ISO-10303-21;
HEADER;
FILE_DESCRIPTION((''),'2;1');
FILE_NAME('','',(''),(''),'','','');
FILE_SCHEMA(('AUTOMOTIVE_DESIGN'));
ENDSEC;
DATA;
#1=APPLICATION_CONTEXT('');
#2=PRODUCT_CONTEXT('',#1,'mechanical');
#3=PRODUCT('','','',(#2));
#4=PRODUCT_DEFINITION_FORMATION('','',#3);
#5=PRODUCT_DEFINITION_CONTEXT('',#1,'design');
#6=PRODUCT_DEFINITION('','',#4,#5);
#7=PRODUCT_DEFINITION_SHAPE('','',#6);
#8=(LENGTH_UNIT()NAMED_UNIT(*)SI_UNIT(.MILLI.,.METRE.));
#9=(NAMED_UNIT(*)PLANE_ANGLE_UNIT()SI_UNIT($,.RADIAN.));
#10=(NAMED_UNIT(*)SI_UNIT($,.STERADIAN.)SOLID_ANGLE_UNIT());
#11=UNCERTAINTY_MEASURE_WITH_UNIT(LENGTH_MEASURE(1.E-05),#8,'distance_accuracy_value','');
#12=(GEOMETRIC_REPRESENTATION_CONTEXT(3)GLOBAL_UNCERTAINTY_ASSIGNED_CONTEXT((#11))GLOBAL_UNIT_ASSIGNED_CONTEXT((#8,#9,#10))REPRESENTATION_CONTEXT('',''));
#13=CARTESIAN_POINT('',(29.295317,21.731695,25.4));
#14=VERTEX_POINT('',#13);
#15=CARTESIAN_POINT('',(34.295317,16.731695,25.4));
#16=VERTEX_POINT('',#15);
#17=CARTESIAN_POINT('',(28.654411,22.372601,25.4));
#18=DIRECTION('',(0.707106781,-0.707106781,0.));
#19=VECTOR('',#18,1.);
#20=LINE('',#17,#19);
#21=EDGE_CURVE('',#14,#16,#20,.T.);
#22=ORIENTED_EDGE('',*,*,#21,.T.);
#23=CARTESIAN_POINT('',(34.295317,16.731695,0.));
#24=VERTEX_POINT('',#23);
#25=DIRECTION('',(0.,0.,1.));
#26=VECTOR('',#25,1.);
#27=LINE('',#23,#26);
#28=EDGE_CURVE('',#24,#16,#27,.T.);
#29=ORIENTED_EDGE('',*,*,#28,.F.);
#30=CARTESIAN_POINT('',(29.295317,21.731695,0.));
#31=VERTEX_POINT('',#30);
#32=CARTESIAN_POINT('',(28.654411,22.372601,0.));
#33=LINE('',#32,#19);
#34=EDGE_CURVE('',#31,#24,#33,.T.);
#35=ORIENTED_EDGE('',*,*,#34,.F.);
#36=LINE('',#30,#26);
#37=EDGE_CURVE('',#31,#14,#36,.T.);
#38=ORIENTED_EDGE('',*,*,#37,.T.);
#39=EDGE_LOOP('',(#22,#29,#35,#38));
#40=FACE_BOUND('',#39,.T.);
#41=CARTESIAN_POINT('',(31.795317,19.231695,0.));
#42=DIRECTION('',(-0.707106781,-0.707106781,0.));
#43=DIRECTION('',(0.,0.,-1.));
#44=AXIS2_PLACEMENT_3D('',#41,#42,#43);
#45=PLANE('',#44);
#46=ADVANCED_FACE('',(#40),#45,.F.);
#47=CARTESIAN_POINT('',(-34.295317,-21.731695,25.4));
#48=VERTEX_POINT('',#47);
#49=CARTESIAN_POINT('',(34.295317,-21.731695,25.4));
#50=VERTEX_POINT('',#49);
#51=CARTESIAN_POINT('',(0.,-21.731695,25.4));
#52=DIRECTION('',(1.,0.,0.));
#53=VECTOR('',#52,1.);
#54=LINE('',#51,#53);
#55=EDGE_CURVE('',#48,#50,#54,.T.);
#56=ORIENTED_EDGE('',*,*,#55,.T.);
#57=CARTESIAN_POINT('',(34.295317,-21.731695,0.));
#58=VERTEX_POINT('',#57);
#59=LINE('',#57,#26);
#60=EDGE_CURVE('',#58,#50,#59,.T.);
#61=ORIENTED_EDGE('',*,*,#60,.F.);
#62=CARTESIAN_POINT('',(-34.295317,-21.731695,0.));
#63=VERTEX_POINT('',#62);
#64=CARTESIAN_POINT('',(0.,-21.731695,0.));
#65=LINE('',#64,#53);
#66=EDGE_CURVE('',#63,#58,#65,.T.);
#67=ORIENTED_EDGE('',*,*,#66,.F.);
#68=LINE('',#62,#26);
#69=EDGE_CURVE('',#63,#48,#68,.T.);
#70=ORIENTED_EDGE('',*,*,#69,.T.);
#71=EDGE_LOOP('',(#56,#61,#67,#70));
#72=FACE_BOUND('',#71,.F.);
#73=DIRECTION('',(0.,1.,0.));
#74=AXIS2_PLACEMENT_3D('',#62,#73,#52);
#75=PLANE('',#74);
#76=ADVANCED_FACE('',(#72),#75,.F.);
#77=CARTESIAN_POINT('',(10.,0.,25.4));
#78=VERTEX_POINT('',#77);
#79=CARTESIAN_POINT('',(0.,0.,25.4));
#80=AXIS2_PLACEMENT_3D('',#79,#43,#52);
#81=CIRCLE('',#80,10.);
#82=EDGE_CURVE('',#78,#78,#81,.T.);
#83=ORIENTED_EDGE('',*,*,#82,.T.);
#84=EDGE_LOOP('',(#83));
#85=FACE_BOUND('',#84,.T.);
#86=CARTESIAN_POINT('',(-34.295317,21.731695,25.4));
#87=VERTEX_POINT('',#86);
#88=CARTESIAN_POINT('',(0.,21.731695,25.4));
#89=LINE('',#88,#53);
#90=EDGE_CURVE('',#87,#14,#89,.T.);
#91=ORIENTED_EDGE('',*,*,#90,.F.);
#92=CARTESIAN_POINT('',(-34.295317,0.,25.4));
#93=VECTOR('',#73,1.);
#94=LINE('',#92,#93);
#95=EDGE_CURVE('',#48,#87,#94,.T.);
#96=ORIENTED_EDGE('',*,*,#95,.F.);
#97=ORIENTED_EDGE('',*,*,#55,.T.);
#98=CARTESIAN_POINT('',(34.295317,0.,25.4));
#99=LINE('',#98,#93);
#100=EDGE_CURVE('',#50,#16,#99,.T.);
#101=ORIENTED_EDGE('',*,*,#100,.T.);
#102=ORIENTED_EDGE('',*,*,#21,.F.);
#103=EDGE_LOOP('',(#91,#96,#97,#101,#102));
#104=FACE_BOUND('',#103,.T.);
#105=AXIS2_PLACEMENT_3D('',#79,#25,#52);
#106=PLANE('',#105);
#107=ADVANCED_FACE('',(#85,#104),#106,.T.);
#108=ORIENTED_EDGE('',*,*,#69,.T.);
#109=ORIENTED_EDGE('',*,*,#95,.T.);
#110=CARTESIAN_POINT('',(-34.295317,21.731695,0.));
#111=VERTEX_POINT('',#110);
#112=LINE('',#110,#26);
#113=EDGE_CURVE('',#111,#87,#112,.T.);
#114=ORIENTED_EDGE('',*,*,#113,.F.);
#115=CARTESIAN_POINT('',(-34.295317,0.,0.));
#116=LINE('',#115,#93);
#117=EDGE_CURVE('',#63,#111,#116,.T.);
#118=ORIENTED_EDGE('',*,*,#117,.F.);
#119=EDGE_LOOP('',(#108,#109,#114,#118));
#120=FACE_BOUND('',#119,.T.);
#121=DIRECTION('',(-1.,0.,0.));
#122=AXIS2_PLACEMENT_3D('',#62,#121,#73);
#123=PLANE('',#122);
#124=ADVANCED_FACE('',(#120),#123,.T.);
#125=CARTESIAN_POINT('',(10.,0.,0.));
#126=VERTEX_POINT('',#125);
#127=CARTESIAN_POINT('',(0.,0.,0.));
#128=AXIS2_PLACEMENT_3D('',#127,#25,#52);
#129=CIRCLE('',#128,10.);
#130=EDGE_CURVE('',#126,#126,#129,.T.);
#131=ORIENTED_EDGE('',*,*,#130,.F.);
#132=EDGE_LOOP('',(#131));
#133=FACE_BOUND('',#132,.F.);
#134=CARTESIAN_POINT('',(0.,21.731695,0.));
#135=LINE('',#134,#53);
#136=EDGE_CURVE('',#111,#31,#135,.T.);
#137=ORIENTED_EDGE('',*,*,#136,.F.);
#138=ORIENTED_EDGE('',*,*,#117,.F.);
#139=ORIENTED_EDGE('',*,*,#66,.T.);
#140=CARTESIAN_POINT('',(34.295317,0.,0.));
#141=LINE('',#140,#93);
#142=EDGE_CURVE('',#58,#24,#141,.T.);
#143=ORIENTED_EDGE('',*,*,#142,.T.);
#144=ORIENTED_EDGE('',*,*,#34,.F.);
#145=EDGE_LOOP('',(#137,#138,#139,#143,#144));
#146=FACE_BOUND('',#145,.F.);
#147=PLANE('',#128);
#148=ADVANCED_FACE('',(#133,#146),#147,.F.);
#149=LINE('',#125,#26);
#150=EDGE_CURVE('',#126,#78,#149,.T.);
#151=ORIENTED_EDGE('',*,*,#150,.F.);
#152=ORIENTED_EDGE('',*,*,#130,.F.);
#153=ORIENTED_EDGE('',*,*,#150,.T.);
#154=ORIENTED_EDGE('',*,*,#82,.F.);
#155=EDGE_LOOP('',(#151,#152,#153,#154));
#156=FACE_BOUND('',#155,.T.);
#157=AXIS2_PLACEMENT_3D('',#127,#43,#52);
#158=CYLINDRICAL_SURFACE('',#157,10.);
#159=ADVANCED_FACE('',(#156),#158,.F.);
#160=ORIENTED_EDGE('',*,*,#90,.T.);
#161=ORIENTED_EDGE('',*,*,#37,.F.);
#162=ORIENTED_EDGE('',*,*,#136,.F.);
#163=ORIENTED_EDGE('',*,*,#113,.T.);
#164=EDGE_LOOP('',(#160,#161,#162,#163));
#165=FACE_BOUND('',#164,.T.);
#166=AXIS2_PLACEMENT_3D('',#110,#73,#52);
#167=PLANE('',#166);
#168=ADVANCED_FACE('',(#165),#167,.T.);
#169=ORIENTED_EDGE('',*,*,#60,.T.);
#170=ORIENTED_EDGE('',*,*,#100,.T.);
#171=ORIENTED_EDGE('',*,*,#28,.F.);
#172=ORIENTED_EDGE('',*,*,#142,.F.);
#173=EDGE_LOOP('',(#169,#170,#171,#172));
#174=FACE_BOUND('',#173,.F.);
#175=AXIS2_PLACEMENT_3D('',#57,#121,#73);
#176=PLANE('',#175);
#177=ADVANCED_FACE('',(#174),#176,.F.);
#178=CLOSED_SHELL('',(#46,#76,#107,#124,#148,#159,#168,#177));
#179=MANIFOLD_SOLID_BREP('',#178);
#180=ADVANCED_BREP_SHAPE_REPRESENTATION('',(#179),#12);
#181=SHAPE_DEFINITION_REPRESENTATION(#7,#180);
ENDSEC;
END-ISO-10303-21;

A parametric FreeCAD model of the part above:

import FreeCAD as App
import Part
import Sketcher
from FreeCAD import Vector
Q = App.Units.Quantity


def edges_at(feature, points):
    """Names of the edges that pass closest to the given points."""
    edges = feature.Shape.Edges
    near = lambda p: min(range(len(edges)), key=lambda i: edges[i].distToShape(Part.Vertex(*p))[0])
    return sorted({f"Edge{near(p) + 1}" for p in points})


def add_polygon(sketch, points):
    """Adds a closed chain of lines whose ends are joined by coincident constraints."""
    first, n = sketch.GeometryCount, len(points)
    for a, b in zip(points, points[1:] + points[:1]):
        sketch.addGeometry(Part.LineSegment(App.Vector(*a, 0), App.Vector(*b, 0)), False)
    for i in range(n):
        sketch.addConstraint(Sketcher.Constraint("Coincident", first + i, 2, first + (i + 1) % n, 1))

doc = App.newDocument("Part")
body = doc.addObject("PartDesign::Body", "Body")

# Sketch on XY plane
sketch1 = doc.addObject("Sketcher::SketchObject", "Sketch")
body.addObject(sketch1)
sketch1.AttachmentSupport = (doc.XY_Plane, [""])
sketch1.MapMode = "FlatFace"
add_polygon(sketch1, [(-34, 22), (-34, -22), (34, -22), (34, 22)])  # lines 0-3
sketch1.addConstraint([
    Sketcher.Constraint("Vertical", 0),
    Sketcher.Constraint("Horizontal", 1),
    Sketcher.Constraint("Vertical", 2),
    Sketcher.Constraint("Horizontal", 3),
    Sketcher.Constraint("Symmetric", 0, 2, 2, 2, -1, 1),
    Sketcher.Constraint("DistanceY", 0, 2, 0, 1, Q("43.46339 mm")),
    Sketcher.Constraint("DistanceX", 1, 1, 1, 2, Q("68.590634 mm")),
])
pad1 = doc.addObject("PartDesign::Pad", "Pad")
body.addObject(pad1)
pad1.Profile = sketch1
pad1.Length = 25.4

# Sketch on XY plane
sketch2 = doc.addObject("Sketcher::SketchObject", "Sketch001")
body.addObject(sketch2)
sketch2.AttachmentSupport = (doc.XY_Plane, [""])
sketch2.MapMode = "FlatFace"
sketch2.addGeometry(Part.Circle(Vector(0, 0, 0), Vector(0, 0, 1), 2.5), False)
sketch2.addConstraint([
    Sketcher.Constraint("Coincident", 0, 3, -1, 1),
    Sketcher.Constraint("Diameter", 0, Q("5 mm")),
])
doc.recompute()
hole = doc.addObject("PartDesign::Hole", "Hole")
body.addObject(hole)
hole.Profile = sketch2
hole.ThreadType = "None"
hole.Diameter = 5
hole.DepthType = "ThroughAll"
hole.Reversed = True

# Sketch on XY plane
sketch3 = doc.addObject("Sketcher::SketchObject", "Sketch002")
body.addObject(sketch3)
sketch3.AttachmentSupport = (doc.XY_Plane, [""])
sketch3.MapMode = "FlatFace"
sketch3.addGeometry(Part.Circle(Vector(0, 0, 0), Vector(0, 0, 1), 10), False)
sketch3.addConstraint([
    Sketcher.Constraint("Coincident", 0, 3, -1, 1),
    Sketcher.Constraint("Diameter", 0, Q("20 mm")),
])
pocket1 = doc.addObject("PartDesign::Pocket", "Pocket")
body.addObject(pocket1)
pocket1.Profile = sketch3
pocket1.Type = "ThroughAll"
pocket1.Reversed = True
doc.recompute()

chamfer = doc.addObject("PartDesign::Chamfer", "Chamfer")
body.addObject(chamfer)
chamfer.Base = (pocket1, edges_at(pocket1, [(34.295, 21.732, 12.7)]))
chamfer.Size = 5

doc.recompute()
